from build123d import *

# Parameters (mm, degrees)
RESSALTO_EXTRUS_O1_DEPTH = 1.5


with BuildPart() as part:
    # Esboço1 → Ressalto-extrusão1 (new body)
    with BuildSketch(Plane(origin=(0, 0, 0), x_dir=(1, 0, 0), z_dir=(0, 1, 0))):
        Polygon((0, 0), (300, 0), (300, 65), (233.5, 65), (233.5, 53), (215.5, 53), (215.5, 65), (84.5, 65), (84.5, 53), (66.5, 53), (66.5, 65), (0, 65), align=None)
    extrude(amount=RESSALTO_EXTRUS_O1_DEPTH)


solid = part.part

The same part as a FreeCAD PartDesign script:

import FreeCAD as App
import Part
import Sketcher


def add_polygon(sketch, points):
    """Adds a closed chain of lines whose ends are joined by coincident constraints."""
    first, n = sketch.GeometryCount, len(points)
    for a, b in zip(points, points[1:] + points[:1]):
        sketch.addGeometry(Part.LineSegment(App.Vector(*a, 0), App.Vector(*b, 0)), False)
    for i in range(n):
        sketch.addConstraint(Sketcher.Constraint("Coincident", first + i, 2, first + (i + 1) % n, 1))

doc = App.newDocument("Part")
body = doc.addObject("PartDesign::Body", "Body")

sketch1 = body.newObject("Sketcher::SketchObject", "Sketch")
sketch1.AttachmentSupport = (doc.getObject("XZ_Plane"), [""])
sketch1.MapMode = "FlatFace"
add_polygon(sketch1, [(0, 0), (300, 0), (300, -65), (233.5, -65), (233.5, -53), (215.5, -53), (215.5, -65), (84.5, -65), (84.5, -53), (66.5, -53), (66.5, -65), (0, -65)])
sketch1.addConstraint(Sketcher.Constraint("Horizontal", 0))
sketch1.addConstraint(Sketcher.Constraint("Vertical", 1))
sketch1.addConstraint(Sketcher.Constraint("Horizontal", 2))
sketch1.addConstraint(Sketcher.Constraint("Vertical", 3))
sketch1.addConstraint(Sketcher.Constraint("Horizontal", 4))
sketch1.addConstraint(Sketcher.Constraint("Vertical", 5))
sketch1.addConstraint(Sketcher.Constraint("Horizontal", 6))
sketch1.addConstraint(Sketcher.Constraint("Vertical", 7))
sketch1.addConstraint(Sketcher.Constraint("Horizontal", 8))
sketch1.addConstraint(Sketcher.Constraint("Vertical", 9))
sketch1.addConstraint(Sketcher.Constraint("Horizontal", 10))
sketch1.addConstraint(Sketcher.Constraint("Vertical", 11))
sketch1.addConstraint(Sketcher.Constraint("Coincident", 11, 2, -1, 1))
sketch1.addConstraint(Sketcher.Constraint("Horizontal", 2, 2, 5, 2))
sketch1.addConstraint(Sketcher.Constraint("Horizontal", 4, 2, 7, 2))
sketch1.addConstraint(Sketcher.Constraint("Horizontal", 6, 2, 9, 2))
sketch1.addConstraint(Sketcher.Constraint("Equal", 4, 8))
sketch1.addConstraint(Sketcher.Constraint("Equal", 2, 10))
sketch1.addConstraint(Sketcher.Constraint("DistanceX", 0, 1, 0, 2, 300.0))
sketch1.addConstraint(Sketcher.Constraint("DistanceX", 4, 2, 4, 1, 18.0))
sketch1.addConstraint(Sketcher.Constraint("DistanceX", 6, 2, 6, 1, 131.0))
sketch1.addConstraint(Sketcher.Constraint("DistanceY", 1, 2, 1, 1, 65.0))
sketch1.addConstraint(Sketcher.Constraint("DistanceY", 3, 1, 3, 2, 12.0))
pad1 = body.newObject("PartDesign::Pad", "Pad")
pad1.Profile = sketch1
pad1.Length = 1.5
pad1.Reversed = True

doc.recompute()
